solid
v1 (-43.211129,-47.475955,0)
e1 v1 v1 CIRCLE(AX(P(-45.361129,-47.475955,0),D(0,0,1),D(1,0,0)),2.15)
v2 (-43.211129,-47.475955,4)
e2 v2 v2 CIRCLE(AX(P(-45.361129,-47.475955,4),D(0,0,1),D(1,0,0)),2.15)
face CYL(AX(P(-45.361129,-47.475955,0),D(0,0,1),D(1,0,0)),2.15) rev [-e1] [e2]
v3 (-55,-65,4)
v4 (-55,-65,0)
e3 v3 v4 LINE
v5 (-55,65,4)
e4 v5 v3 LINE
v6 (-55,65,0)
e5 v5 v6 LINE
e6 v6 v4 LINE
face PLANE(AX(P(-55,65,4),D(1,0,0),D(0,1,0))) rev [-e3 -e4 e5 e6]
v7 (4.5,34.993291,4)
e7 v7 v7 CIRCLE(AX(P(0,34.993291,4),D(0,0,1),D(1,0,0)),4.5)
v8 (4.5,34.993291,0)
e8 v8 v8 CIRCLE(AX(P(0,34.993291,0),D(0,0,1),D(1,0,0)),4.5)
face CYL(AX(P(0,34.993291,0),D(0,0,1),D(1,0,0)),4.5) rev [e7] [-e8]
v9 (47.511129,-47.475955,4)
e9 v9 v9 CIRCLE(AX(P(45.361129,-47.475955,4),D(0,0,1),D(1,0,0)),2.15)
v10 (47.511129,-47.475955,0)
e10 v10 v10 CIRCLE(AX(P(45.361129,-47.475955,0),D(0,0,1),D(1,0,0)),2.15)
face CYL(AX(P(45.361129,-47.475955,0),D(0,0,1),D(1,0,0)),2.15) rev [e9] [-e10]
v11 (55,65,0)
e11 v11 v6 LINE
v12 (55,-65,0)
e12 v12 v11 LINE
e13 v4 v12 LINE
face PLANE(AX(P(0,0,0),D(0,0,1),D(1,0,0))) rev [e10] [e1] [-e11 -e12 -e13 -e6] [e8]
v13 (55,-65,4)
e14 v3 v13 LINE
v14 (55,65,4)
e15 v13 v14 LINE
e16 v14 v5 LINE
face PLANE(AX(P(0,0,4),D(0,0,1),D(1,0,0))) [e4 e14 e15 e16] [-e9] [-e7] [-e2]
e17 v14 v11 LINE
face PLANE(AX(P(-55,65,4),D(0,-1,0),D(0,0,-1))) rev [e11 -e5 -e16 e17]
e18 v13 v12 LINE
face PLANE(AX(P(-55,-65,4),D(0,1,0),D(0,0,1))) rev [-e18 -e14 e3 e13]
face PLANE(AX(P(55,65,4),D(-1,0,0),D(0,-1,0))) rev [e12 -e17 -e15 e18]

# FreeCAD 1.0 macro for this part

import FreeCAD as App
import Part
import Sketcher
from FreeCAD import Vector
Q = App.Units.Quantity

doc = App.newDocument("Part")
params = doc.addObject("Spreadsheet::Sheet", "Params")
for row, (alias, value) in enumerate([
    ("sketch1_width", "110 mm"),
    ("sketch1_height", "130 mm"),
    ("pad1_length", "4 mm"),
    ("sketch2_diameter", "9 mm"),
    ("pocket1_length", "4 mm"),
    ("sketch3_diameter", "4.3 mm"),
    ("sketch4_diameter", "4.3 mm"),
], start=1):
    params.set(f"A{row}", alias)
    params.set(f"B{row}", "=" + value)
    params.setAlias(f"B{row}", alias)

body = doc.addObject("PartDesign::Body", "Body")

# Sketch on XY plane
sketch1 = body.newObject("Sketcher::SketchObject", "Sketch")
sketch1.AttachmentSupport = (doc.getObject("XY_Plane"), [""])
sketch1.MapMode = "FlatFace"
sketch1.addGeometry(Part.LineSegment(Vector(-55, 65, 0), Vector(-55, -65, 0)), False)
sketch1.addGeometry(Part.LineSegment(Vector(-55, -65, 0), Vector(55, -65, 0)), False)
sketch1.addGeometry(Part.LineSegment(Vector(55, -65, 0), Vector(55, 65, 0)), False)
sketch1.addGeometry(Part.LineSegment(Vector(55, 65, 0), Vector(-55, 65, 0)), False)
sketch1.addConstraint(Sketcher.Constraint("Coincident", 0, 2, 1, 1))
sketch1.addConstraint(Sketcher.Constraint("Coincident", 1, 2, 2, 1))
sketch1.addConstraint(Sketcher.Constraint("Coincident", 2, 2, 3, 1))
sketch1.addConstraint(Sketcher.Constraint("Coincident", 3, 2, 0, 1))
sketch1.addConstraint(Sketcher.Constraint("Vertical", 0))
sketch1.addConstraint(Sketcher.Constraint("Horizontal", 1))
sketch1.addConstraint(Sketcher.Constraint("Vertical", 2))
sketch1.addConstraint(Sketcher.Constraint("Horizontal", 3))
sketch1.addConstraint(Sketcher.Constraint("Symmetric", 0, 2, 2, 2, -1, 1))
sketch1.addConstraint(Sketcher.Constraint("DistanceX", 1, 1, 1, 2, Q("110 mm")))
sketch1.addConstraint(Sketcher.Constraint("DistanceY", 0, 2, 0, 1, Q("130 mm")))
sketch1.setExpression("Constraints[9]", "Params.sketch1_width")
sketch1.setExpression("Constraints[10]", "Params.sketch1_height")
pad1 = body.newObject("PartDesign::Pad", "Pad")
pad1.Profile = sketch1
pad1.setExpression("Length", "Params.pad1_length")

# Sketch on XY plane
sketch2 = body.newObject("Sketcher::SketchObject", "Sketch001")
sketch2.AttachmentSupport = (doc.getObject("XY_Plane"), [""])
sketch2.MapMode = "FlatFace"
sketch2.AttachmentOffset = App.Placement(Vector(0, 0, 4), App.Rotation())
sketch2.addGeometry(Part.Circle(Vector(0, 35, 0), Vector(0, 0, 1), 4.5), False)
sketch2.addConstraint(Sketcher.Constraint("PointOnObject", 0, 3, -2))
sketch2.addConstraint(Sketcher.Constraint("Diameter", 0, Q("9 mm")))
sketch2.addConstraint(Sketcher.Constraint("DistanceY", -1, 1, 0, 3, Q("34.993291 mm")))
sketch2.setExpression("Constraints[1]", "Params.sketch2_diameter")
pocket1 = body.newObject("PartDesign::Pocket", "Pocket")
pocket1.Profile = sketch2
pocket1.setExpression("Length", "Params.pocket1_length")

# Sketch on XY plane
sketch3 = body.newObject("Sketcher::SketchObject", "Sketch002")
sketch3.AttachmentSupport = (doc.getObject("XY_Plane"), [""])
sketch3.MapMode = "FlatFace"
sketch3.AttachmentOffset = App.Placement(Vector(0, 0, 4), App.Rotation())
sketch3.addGeometry(Part.Circle(Vector(-45.4, -47.5, 0), Vector(0, 0, 1), 2.1), False)
sketch3.addConstraint(Sketcher.Constraint("Diameter", 0, Q("4.3 mm")))
sketch3.addConstraint(Sketcher.Constraint("DistanceX", 0, 3, -1, 1, Q("45.361129 mm")))
sketch3.addConstraint(Sketcher.Constraint("DistanceY", 0, 3, -1, 1, Q("47.475955 mm")))
sketch3.setExpression("Constraints[0]", "Params.sketch3_diameter")
pocket2 = body.newObject("PartDesign::Pocket", "Pocket001")
pocket2.Profile = sketch3
pocket2.Type = "ThroughAll"

# Sketch on XY plane
sketch4 = body.newObject("Sketcher::SketchObject", "Sketch003")
sketch4.AttachmentSupport = (doc.getObject("XY_Plane"), [""])
sketch4.MapMode = "FlatFace"
sketch4.AttachmentOffset = App.Placement(Vector(0, 0, 4), App.Rotation())
sketch4.addGeometry(Part.Circle(Vector(45.4, -47.5, 0), Vector(0, 0, 1), 2.1), False)
sketch4.addConstraint(Sketcher.Constraint("Diameter", 0, Q("4.3 mm")))
sketch4.addConstraint(Sketcher.Constraint("DistanceX", -1, 1, 0, 3, Q("45.361129 mm")))
sketch4.addConstraint(Sketcher.Constraint("DistanceY", 0, 3, -1, 1, Q("47.475955 mm")))
sketch4.setExpression("Constraints[0]", "Params.sketch4_diameter")
pocket3 = body.newObject("PartDesign::Pocket", "Pocket002")
pocket3.Profile = sketch4
pocket3.Type = "ThroughAll"

doc.recompute()
